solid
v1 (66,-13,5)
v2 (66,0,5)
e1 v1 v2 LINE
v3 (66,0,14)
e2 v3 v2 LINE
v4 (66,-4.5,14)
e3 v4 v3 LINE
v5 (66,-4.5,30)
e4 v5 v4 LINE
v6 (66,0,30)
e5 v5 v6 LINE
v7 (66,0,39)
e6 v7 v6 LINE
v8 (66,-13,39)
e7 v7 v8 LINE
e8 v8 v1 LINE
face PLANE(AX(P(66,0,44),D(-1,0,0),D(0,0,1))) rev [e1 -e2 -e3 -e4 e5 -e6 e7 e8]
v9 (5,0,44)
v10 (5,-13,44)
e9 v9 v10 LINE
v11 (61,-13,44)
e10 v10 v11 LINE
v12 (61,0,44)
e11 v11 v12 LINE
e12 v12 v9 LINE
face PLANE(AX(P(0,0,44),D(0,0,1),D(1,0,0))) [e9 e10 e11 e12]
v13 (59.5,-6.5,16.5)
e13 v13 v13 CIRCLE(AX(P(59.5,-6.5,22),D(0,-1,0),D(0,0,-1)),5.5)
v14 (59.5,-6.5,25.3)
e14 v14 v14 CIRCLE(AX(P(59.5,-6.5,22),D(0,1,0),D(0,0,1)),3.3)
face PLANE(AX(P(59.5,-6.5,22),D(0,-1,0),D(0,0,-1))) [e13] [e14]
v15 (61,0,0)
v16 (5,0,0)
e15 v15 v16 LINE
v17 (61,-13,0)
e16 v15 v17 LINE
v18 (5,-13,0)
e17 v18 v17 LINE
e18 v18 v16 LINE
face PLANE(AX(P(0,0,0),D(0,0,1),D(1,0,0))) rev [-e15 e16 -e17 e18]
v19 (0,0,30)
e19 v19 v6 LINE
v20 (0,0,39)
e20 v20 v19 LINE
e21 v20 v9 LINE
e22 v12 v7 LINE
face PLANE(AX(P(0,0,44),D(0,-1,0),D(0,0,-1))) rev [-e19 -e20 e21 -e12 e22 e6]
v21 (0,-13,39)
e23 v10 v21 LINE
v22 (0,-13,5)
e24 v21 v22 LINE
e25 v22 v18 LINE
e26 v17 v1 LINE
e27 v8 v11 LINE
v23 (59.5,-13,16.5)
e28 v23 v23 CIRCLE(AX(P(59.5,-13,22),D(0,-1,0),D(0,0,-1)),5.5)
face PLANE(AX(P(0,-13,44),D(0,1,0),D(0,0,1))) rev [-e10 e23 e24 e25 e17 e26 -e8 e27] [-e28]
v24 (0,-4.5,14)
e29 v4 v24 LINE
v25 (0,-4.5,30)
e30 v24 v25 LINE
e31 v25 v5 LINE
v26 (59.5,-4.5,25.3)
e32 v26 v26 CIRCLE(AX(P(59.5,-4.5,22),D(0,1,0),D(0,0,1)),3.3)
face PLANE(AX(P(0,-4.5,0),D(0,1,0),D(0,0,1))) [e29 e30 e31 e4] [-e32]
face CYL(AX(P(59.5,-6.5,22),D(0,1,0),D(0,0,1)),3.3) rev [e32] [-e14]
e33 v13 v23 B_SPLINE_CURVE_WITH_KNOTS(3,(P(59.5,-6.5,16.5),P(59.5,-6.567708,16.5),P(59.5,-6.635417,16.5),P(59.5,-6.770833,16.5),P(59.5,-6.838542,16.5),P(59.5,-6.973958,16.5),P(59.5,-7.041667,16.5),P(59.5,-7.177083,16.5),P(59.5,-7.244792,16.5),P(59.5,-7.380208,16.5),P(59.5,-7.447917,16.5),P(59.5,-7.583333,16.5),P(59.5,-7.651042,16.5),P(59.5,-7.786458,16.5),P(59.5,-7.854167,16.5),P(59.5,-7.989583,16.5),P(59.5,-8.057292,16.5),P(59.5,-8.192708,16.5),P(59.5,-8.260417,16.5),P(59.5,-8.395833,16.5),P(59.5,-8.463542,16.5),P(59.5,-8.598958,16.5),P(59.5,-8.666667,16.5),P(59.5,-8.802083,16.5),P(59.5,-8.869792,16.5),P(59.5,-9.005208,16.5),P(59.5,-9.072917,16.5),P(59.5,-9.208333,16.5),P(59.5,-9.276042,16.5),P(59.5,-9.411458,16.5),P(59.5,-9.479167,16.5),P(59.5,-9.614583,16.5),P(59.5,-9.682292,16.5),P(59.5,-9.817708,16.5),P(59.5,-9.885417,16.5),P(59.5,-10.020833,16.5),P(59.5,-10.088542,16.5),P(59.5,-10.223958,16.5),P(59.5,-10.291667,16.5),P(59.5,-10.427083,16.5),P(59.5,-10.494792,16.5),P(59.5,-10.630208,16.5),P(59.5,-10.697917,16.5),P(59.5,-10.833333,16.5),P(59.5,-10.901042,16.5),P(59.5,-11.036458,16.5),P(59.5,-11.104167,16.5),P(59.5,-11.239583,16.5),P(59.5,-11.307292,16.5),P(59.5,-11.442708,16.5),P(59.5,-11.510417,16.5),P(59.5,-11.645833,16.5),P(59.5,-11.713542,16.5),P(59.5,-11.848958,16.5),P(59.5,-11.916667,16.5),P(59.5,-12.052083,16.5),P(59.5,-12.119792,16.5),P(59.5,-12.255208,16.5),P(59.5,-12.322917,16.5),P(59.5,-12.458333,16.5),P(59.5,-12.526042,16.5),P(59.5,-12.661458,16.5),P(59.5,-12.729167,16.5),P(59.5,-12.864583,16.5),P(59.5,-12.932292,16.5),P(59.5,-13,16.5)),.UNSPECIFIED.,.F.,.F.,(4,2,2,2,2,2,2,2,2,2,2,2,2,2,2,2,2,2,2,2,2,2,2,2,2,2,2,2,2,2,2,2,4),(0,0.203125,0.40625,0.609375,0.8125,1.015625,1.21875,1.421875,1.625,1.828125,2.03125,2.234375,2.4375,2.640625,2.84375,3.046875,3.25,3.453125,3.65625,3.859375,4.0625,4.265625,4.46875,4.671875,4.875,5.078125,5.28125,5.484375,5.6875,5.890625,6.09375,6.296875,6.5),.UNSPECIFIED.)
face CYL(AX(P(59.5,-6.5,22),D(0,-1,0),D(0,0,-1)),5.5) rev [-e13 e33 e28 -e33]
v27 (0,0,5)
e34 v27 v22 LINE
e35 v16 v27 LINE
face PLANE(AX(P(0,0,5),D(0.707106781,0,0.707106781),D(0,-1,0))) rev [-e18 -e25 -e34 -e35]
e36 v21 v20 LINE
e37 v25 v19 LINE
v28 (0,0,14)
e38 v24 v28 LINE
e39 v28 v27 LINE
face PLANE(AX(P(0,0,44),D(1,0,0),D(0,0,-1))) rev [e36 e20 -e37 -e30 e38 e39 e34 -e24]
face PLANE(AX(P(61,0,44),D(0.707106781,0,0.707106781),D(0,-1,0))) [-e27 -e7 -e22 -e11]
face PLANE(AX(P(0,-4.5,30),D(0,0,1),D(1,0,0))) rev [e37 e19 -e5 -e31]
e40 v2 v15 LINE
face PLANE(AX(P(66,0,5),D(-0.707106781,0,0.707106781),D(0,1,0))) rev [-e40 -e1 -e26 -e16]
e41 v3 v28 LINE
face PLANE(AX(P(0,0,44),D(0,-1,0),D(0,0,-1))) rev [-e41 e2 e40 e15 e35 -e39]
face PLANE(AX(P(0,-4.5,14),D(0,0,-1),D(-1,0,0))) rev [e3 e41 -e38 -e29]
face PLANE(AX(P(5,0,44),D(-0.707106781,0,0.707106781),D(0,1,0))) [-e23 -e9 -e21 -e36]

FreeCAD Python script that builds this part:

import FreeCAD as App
import Part
import Sketcher

V = App.Vector
Q = App.Units.Quantity


def edges_at(feature, points):
    """Names of the edges that pass closest to the given points."""
    edges = feature.Shape.Edges
    near = lambda p: min(range(len(edges)), key=lambda i: edges[i].distToShape(Part.Vertex(*p))[0])
    return sorted({f"Edge{near(p) + 1}" for p in points})


def add_polygon(sketch, points):
    """Adds a closed chain of lines whose ends are joined by coincident constraints."""
    first, n = sketch.GeometryCount, len(points)
    for a, b in zip(points, points[1:] + points[:1]):
        sketch.addGeometry(Part.LineSegment(App.Vector(*a, 0), App.Vector(*b, 0)), False)
    for i in range(n):
        sketch.addConstraint(Sketcher.Constraint("Coincident", first + i, 2, first + (i + 1) % n, 1))

doc = App.newDocument("Part")
params = doc.addObject("Spreadsheet::Sheet", "Params")
for row, (alias, value) in enumerate([
    ("sketch1_width", "66 mm"),
    ("sketch1_height", "13 mm"),
    ("pad1_length", "44 mm"),
    ("sketch2_width", "66 mm"),
    ("sketch2_height", "16 mm"),
    ("pocket1_length", "4.5 mm"),
    ("chamfer_size", "5 mm"),
    ("sketch3_diameter", "6.6 mm"),
    ("pocket2_length", "2 mm"),
    ("sketch4_diameter", "11 mm"),
    ("pocket3_length", "6.5 mm"),
], start=1):
    params.set(f"A{row}", alias)
    params.set(f"B{row}", "=" + value)
    params.setAlias(f"B{row}", alias)

body = doc.addObject("PartDesign::Body", "Body")

# Sketch on XY plane
sketch1 = body.newObject("Sketcher::SketchObject", "Sketch")
sketch1.AttachmentSupport = (doc.getObject("XY_Plane"), [""])
sketch1.MapMode = "FlatFace"
add_polygon(sketch1, [(0, 0), (0, -13), (66, -13), (66, 0)])  # lines 0-3
sketch1.addConstraint([
    Sketcher.Constraint("Vertical", 0),
    Sketcher.Constraint("Horizontal", 1),
    Sketcher.Constraint("Vertical", 2),
    Sketcher.Constraint("Horizontal", 3),
    Sketcher.Constraint("Coincident", 3, 2, -1, 1),
    Sketcher.Constraint("DistanceX", 1, 1, 1, 2, Q("66 mm")),
    Sketcher.Constraint("DistanceY", 0, 2, 0, 1, Q("13 mm")),
])
sketch1.setExpression("Constraints[9]", "Params.sketch1_width")
sketch1.setExpression("Constraints[10]", "Params.sketch1_height")
pad1 = body.newObject("PartDesign::Pad", "Pad")
pad1.Profile = sketch1
pad1.setExpression("Length", "Params.pad1_length")

# Sketch on XZ plane
sketch2 = body.newObject("Sketcher::SketchObject", "Sketch001")
sketch2.AttachmentSupport = (doc.getObject("XZ_Plane"), [""])
sketch2.MapMode = "FlatFace"
add_polygon(sketch2, [(0, 14), (0, 30), (66, 30), (66, 14)])  # lines 0-3
sketch2.addConstraint([
    Sketcher.Constraint("Vertical", 0),
    Sketcher.Constraint("Horizontal", 1),
    Sketcher.Constraint("Vertical", 2),
    Sketcher.Constraint("Horizontal", 3),
    Sketcher.Constraint("PointOnObject", 0, 2, -2),
    Sketcher.Constraint("DistanceX", 1, 1, 1, 2, Q("66 mm")),
    Sketcher.Constraint("DistanceY", 0, 1, 0, 2, Q("16 mm")),
    Sketcher.Constraint("DistanceY", -1, 1, 0, 2, Q("30 mm")),
])
sketch2.setExpression("Constraints[9]", "Params.sketch2_width")
sketch2.setExpression("Constraints[10]", "Params.sketch2_height")
pocket1 = body.newObject("PartDesign::Pocket", "Pocket")
pocket1.Profile = sketch2
pocket1.setExpression("Length", "Params.pocket1_length")
pocket1.Reversed = True
doc.recompute()

chamfer = body.newObject("PartDesign::Chamfer", "Chamfer")
chamfer.Base = (pocket1, edges_at(pocket1, [
    (66, -6.5, 44),
    (0, -6.5, 44),
    (66, -6.5, 0),
    (0, -6.5, 0),
]))
chamfer.setExpression("Size", "Params.chamfer_size")

# Sketch on XZ plane
sketch3 = body.newObject("Sketcher::SketchObject", "Sketch002")
sketch3.AttachmentSupport = (doc.getObject("XZ_Plane"), [""])
sketch3.MapMode = "FlatFace"
sketch3.AttachmentOffset = App.Placement(V(0, 0, 4.5), App.Rotation())
sketch3.addGeometry(Part.Circle(V(59.5, 22, 0), V(0, 0, 1), 3.3), False)
sketch3.addConstraint([
    Sketcher.Constraint("Diameter", 0, Q("6.6 mm")),
    Sketcher.Constraint("DistanceY", -1, 1, 0, 3, Q("22 mm")),
    Sketcher.Constraint("DistanceX", -1, 1, 0, 3, Q("59.5 mm")),
])
sketch3.setExpression("Constraints[0]", "Params.sketch3_diameter")
pocket2 = body.newObject("PartDesign::Pocket", "Pocket001")
pocket2.Profile = sketch3
pocket2.setExpression("Length", "Params.pocket2_length")
pocket2.Reversed = True

# Sketch on XZ plane
sketch4 = body.newObject("Sketcher::SketchObject", "Sketch003")
sketch4.AttachmentSupport = (doc.getObject("XZ_Plane"), [""])
sketch4.MapMode = "FlatFace"
sketch4.AttachmentOffset = App.Placement(V(0, 0, 13), App.Rotation())
sketch4.addGeometry(Part.Circle(V(59.5, 22, 0), V(0, 0, 1), 5.5), False)
sketch4.addConstraint([
    Sketcher.Constraint("Diameter", 0, Q("11 mm")),
    Sketcher.Constraint("DistanceY", -1, 1, 0, 3, Q("22 mm")),
    Sketcher.Constraint("DistanceX", -1, 1, 0, 3, Q("59.5 mm")),
])
sketch4.setExpression("Constraints[0]", "Params.sketch4_diameter")
pocket3 = body.newObject("PartDesign::Pocket", "Pocket002")
pocket3.Profile = sketch4
pocket3.setExpression("Length", "Params.pocket3_length")

doc.recompute()
